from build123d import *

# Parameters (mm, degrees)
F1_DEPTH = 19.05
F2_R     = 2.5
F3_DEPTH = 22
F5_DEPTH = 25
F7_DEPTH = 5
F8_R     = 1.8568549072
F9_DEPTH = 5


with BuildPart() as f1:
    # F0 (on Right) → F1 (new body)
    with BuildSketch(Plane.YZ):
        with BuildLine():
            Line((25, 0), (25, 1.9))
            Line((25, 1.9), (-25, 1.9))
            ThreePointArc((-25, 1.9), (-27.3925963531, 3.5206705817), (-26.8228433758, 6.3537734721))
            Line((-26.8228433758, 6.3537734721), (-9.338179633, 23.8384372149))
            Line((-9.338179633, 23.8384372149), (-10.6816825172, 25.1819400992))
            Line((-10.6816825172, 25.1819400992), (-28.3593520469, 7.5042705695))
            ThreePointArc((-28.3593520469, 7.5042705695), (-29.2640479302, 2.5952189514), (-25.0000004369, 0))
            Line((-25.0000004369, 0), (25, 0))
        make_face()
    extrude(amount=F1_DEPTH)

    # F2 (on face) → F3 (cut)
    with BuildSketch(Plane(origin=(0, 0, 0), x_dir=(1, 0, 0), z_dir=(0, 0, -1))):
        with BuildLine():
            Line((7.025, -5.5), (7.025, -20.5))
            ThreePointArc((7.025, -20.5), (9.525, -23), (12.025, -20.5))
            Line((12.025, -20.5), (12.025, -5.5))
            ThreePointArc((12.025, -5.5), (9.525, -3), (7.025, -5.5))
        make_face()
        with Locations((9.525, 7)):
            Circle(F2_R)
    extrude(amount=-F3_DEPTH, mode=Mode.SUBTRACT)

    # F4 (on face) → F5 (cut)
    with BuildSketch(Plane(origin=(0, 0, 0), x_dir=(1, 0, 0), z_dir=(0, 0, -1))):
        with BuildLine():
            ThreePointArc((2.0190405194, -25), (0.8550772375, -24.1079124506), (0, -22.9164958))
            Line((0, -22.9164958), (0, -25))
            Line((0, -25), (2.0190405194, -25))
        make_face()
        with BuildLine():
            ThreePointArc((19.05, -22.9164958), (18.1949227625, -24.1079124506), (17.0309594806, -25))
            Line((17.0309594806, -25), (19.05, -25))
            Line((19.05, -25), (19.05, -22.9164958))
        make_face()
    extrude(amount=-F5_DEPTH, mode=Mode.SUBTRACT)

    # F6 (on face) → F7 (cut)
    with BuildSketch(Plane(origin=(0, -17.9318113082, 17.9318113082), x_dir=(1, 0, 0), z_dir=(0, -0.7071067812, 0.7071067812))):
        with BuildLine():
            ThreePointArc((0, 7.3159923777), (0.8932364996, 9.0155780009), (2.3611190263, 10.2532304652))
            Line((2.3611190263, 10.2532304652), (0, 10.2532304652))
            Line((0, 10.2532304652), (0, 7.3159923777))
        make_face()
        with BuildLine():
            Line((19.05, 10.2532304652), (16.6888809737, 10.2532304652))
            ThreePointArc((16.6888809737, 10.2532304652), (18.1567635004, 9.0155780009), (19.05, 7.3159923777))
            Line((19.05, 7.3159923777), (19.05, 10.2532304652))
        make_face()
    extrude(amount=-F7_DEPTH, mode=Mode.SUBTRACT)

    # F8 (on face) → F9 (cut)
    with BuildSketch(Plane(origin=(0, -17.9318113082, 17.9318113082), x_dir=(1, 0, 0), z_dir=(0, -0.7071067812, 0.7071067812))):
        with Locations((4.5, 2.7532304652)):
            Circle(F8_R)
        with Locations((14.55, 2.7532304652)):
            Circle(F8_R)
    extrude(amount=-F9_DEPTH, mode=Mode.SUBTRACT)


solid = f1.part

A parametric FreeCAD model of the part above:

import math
import FreeCAD as App
import Part
import Sketcher

V = App.Vector
Q = App.Units.Quantity

doc = App.newDocument("Part")
body = doc.addObject("PartDesign::Body", "Body")

# Sketch on YZ plane
sketch1 = body.newObject("Sketcher::SketchObject", "Sketch")
sketch1.AttachmentSupport = (doc.getObject("YZ_Plane"), [""])
sketch1.MapMode = "FlatFace"
sketch1.addGeometry(Part.LineSegment(V(25, 0, 0), V(25, 1.9, 0)), False)
sketch1.addGeometry(Part.LineSegment(V(25, 1.9, 0), V(-25, 1.9, 0)), False)
sketch1.addGeometry(Part.ArcOfCircle(Part.Circle(V(-24.977992, 4.508922, 0), V(0, 0, 1), 2.609014), math.radians(135), math.radians(269.516673)), False)
sketch1.addGeometry(Part.LineSegment(V(-26.822843, 6.353773, 0), V(-9.33818, 23.838437, 0)), False)
sketch1.addGeometry(Part.LineSegment(V(-9.33818, 23.838437, 0), V(-10.681683, 25.18194, 0)), False)
sketch1.addGeometry(Part.LineSegment(V(-10.681683, 25.18194, 0), V(-28.359352, 7.504271, 0)), False)
sketch1.addGeometry(Part.ArcOfCircle(Part.Circle(V(-25.248082, 4.393001, 0), V(0, 0, 1), 4.4), math.radians(135), math.radians(273.232177)), False)
sketch1.addGeometry(Part.LineSegment(V(-25, 0, 0), V(25, 0, 0)), False)
sketch1.addConstraint(Sketcher.Constraint("Coincident", 0, 2, 1, 1))
sketch1.addConstraint(Sketcher.Constraint("Coincident", 1, 2, 2, 2))
sketch1.addConstraint(Sketcher.Constraint("Tangent", 2, 1, 3, 1))
sketch1.addConstraint(Sketcher.Constraint("Coincident", 3, 2, 4, 1))
sketch1.addConstraint(Sketcher.Constraint("Coincident", 4, 2, 5, 1))
sketch1.addConstraint(Sketcher.Constraint("Tangent", 5, 2, 6, 1))
sketch1.addConstraint(Sketcher.Constraint("Coincident", 6, 2, 7, 1))
sketch1.addConstraint(Sketcher.Constraint("Coincident", 7, 2, 0, 1))
sketch1.addConstraint(Sketcher.Constraint("Vertical", 0))
sketch1.addConstraint(Sketcher.Constraint("Horizontal", 1))
sketch1.addConstraint(Sketcher.Constraint("Horizontal", 7))
sketch1.addConstraint(Sketcher.Constraint("Symmetric", 6, 2, 7, 2, -1, 1))
sketch1.addConstraint(Sketcher.Constraint("Perpendicular", 3, 4))
sketch1.addConstraint(Sketcher.Constraint("Perpendicular", 4, 5))
sketch1.addConstraint(Sketcher.Constraint("Vertical", 1, 2, 6, 2))
sketch1.addConstraint(Sketcher.Constraint("Radius", 6, 4.4))
sketch1.addConstraint(Sketcher.Constraint("DistanceX", 1, 2, 1, 1, 50.0))
sketch1.addConstraint(Sketcher.Constraint("Angle", 3, Q("45 deg")))
sketch1.addConstraint(Sketcher.Constraint("Distance", 5, 25.0))
sketch1.addConstraint(Sketcher.Constraint("DistanceY", 0, 1, 0, 2, 1.9))
sketch1.addConstraint(Sketcher.Constraint("Distance", 4, 1.9))
sketch1.addConstraint(Sketcher.Constraint("DistanceY", -1, 1, 6, 3, 4.393001))
sketch1.addConstraint(Sketcher.Constraint("Radius", 2, 2.609014))
pad1 = body.newObject("PartDesign::Pad", "Pad")
pad1.Profile = sketch1
pad1.Length = 19.05

# Sketch on XY plane
sketch2 = body.newObject("Sketcher::SketchObject", "Sketch001")
sketch2.AttachmentSupport = (doc.getObject("XY_Plane"), [""])
sketch2.MapMode = "FlatFace"
sketch2.addGeometry(Part.LineSegment(V(7.025, 5.5, 0), V(7.025, 20.5, 0)), False)
sketch2.addGeometry(Part.ArcOfCircle(Part.Circle(V(9.525, 20.5, 0), V(0, 0, 1), 2.5), math.radians(0), math.radians(180)), False)
sketch2.addGeometry(Part.LineSegment(V(12.025, 20.5, 0), V(12.025, 5.5, 0)), False)
sketch2.addGeometry(Part.ArcOfCircle(Part.Circle(V(9.525, 5.5, 0), V(0, 0, 1), 2.5), math.radians(180), math.radians(360)), False)
sketch2.addGeometry(Part.Circle(V(9.525, -7, 0), V(0, 0, 1), 2.5), False)
sketch2.addConstraint(Sketcher.Constraint("Tangent", 0, 2, 1, 2))
sketch2.addConstraint(Sketcher.Constraint("Tangent", 1, 1, 2, 1))
sketch2.addConstraint(Sketcher.Constraint("Tangent", 2, 2, 3, 2))
sketch2.addConstraint(Sketcher.Constraint("Tangent", 3, 1, 0, 1))
sketch2.addConstraint(Sketcher.Constraint("Vertical", 0))
sketch2.addConstraint(Sketcher.Constraint("Vertical", 2))
sketch2.addConstraint(Sketcher.Constraint("Equal", 3, 4))
sketch2.addConstraint(Sketcher.Constraint("Vertical", 3, 3, 4, 3))
sketch2.addConstraint(Sketcher.Constraint("Diameter", 4, 5.0))
sketch2.addConstraint(Sketcher.Constraint("DistanceY", 0, 1, 0, 2, 15.0))
sketch2.addConstraint(Sketcher.Constraint("DistanceY", 4, 3, -1, 1, 7.0))
sketch2.addConstraint(Sketcher.Constraint("DistanceY", -1, 1, 1, 3, 20.5))
sketch2.addConstraint(Sketcher.Constraint("DistanceX", -1, 1, 1, 3, 9.525))
pocket1 = body.newObject("PartDesign::Pocket", "Pocket")
pocket1.Profile = sketch2
pocket1.Length = 22
pocket1.Reversed = True

# Sketch on XY plane
sketch3 = body.newObject("Sketcher::SketchObject", "Sketch002")
sketch3.AttachmentSupport = (doc.getObject("XY_Plane"), [""])
sketch3.MapMode = "FlatFace"
sketch3.addGeometry(Part.ArcOfCircle(Part.Circle(V(4.445722, 20.628362, 0), V(0, 0, 1), 5), math.radians(119.034509), math.radians(152.765931)), False)
sketch3.addGeometry(Part.LineSegment(V(0, 22.916496, 0), V(0, 25, 0)), False)
sketch3.addGeometry(Part.LineSegment(V(0, 25, 0), V(2.019041, 25, 0)), False)
sketch3.addGeometry(Part.ArcOfCircle(Part.Circle(V(14.604278, 20.628362, 0), V(0, 0, 1), 5), math.radians(27.234069), math.radians(60.965491)), False)
sketch3.addGeometry(Part.LineSegment(V(17.030959, 25, 0), V(19.05, 25, 0)), False)
sketch3.addGeometry(Part.LineSegment(V(19.05, 25, 0), V(19.05, 22.916496, 0)), False)
sketch3.addConstraint(Sketcher.Constraint("Coincident", 0, 2, 1, 1))
sketch3.addConstraint(Sketcher.Constraint("Coincident", 1, 2, 2, 1))
sketch3.addConstraint(Sketcher.Constraint("Coincident", 2, 2, 0, 1))
sketch3.addConstraint(Sketcher.Constraint("Coincident", 3, 2, 4, 1))
sketch3.addConstraint(Sketcher.Constraint("Coincident", 4, 2, 5, 1))
sketch3.addConstraint(Sketcher.Constraint("Coincident", 5, 2, 3, 1))
sketch3.addConstraint(Sketcher.Constraint("Vertical", 1))
sketch3.addConstraint(Sketcher.Constraint("Horizontal", 2))
sketch3.addConstraint(Sketcher.Constraint("Horizontal", 4))
sketch3.addConstraint(Sketcher.Constraint("Vertical", 5))
sketch3.addConstraint(Sketcher.Constraint("Equal", 0, 3))
sketch3.addConstraint(Sketcher.Constraint("PointOnObject", 0, 2, -2))
sketch3.addConstraint(Sketcher.Constraint("Horizontal", 0, 3, 3, 3))
sketch3.addConstraint(Sketcher.Constraint("Horizontal", 2, 2, 3, 2))
sketch3.addConstraint(Sketcher.Constraint("Horizontal", 0, 2, 5, 2))
sketch3.addConstraint(Sketcher.Constraint("Radius", 0, 5.0))
sketch3.addConstraint(Sketcher.Constraint("DistanceY", -1, 1, 1, 2, 25.0))
sketch3.addConstraint(Sketcher.Constraint("DistanceX", -1, 1, 4, 2, 19.05))
sketch3.addConstraint(Sketcher.Constraint("DistanceX", 2, 1, 2, 2, 2.019041))
sketch3.addConstraint(Sketcher.Constraint("DistanceY", 1, 1, 1, 2, 2.083504))
pocket2 = body.newObject("PartDesign::Pocket", "Pocket001")
pocket2.Profile = sketch3
pocket2.Length = 25
pocket2.Reversed = True

# Sketch on an angled plane
sketch4 = body.newObject("Sketcher::SketchObject", "Sketch003")
sketch4.Placement = App.Placement(V(0, -17.931811, 17.931811), App.Rotation(V(1, 0, 0), V(0, 0.707106781, 0.707106781), V(0, -0.707106781, 0.707106781), "ZXY"))
sketch4.addGeometry(Part.ArcOfCircle(Part.Circle(V(4.790238, 5.882947, 0), V(0, 0, 1), 5), math.radians(119.066459), math.radians(163.34494)), False)
sketch4.addGeometry(Part.LineSegment(V(2.361119, 10.25323, 0), V(0, 10.25323, 0)), False)
sketch4.addGeometry(Part.LineSegment(V(0, 10.25323, 0), V(0, 7.315992, 0)), False)
sketch4.addGeometry(Part.LineSegment(V(19.05, 10.25323, 0), V(16.688881, 10.25323, 0)), False)
sketch4.addGeometry(Part.ArcOfCircle(Part.Circle(V(14.259762, 5.882947, 0), V(0, 0, 1), 5), math.radians(16.65506), math.radians(60.933541)), False)
sketch4.addGeometry(Part.LineSegment(V(19.05, 7.315992, 0), V(19.05, 10.25323, 0)), False)
sketch4.addConstraint(Sketcher.Constraint("Coincident", 0, 1, 1, 1))
sketch4.addConstraint(Sketcher.Constraint("Coincident", 1, 2, 2, 1))
sketch4.addConstraint(Sketcher.Constraint("Coincident", 2, 2, 0, 2))
sketch4.addConstraint(Sketcher.Constraint("Coincident", 3, 2, 4, 2))
sketch4.addConstraint(Sketcher.Constraint("Coincident", 4, 1, 5, 1))
sketch4.addConstraint(Sketcher.Constraint("Coincident", 5, 2, 3, 1))
sketch4.addConstraint(Sketcher.Constraint("Horizontal", 1))
sketch4.addConstraint(Sketcher.Constraint("Vertical", 2))
sketch4.addConstraint(Sketcher.Constraint("Horizontal", 3))
sketch4.addConstraint(Sketcher.Constraint("Vertical", 5))
sketch4.addConstraint(Sketcher.Constraint("Equal", 0, 4))
sketch4.addConstraint(Sketcher.Constraint("PointOnObject", 1, 2, -2))
sketch4.addConstraint(Sketcher.Constraint("Horizontal", 0, 3, 4, 3))
sketch4.addConstraint(Sketcher.Constraint("Horizontal", 1, 2, 3, 2))
sketch4.addConstraint(Sketcher.Constraint("Horizontal", 2, 2, 4, 1))
sketch4.addConstraint(Sketcher.Constraint("Radius", 0, 5.0))
sketch4.addConstraint(Sketcher.Constraint("DistanceX", -1, 1, 4, 1, 19.05))
sketch4.addConstraint(Sketcher.Constraint("DistanceX", 1, 2, 1, 1, 2.361119))
sketch4.addConstraint(Sketcher.Constraint("DistanceY", 2, 2, 2, 1, 2.937238))
sketch4.addConstraint(Sketcher.Constraint("DistanceY", -1, 1, 0, 1, 10.25323))
pocket3 = body.newObject("PartDesign::Pocket", "Pocket002")
pocket3.Profile = sketch4
pocket3.Length = 5

# Sketch on an angled plane
sketch5 = body.newObject("Sketcher::SketchObject", "Sketch004")
sketch5.Placement = App.Placement(V(0, -17.931811, 17.931811), App.Rotation(V(1, 0, 0), V(0, 0.707106781, 0.707106781), V(0, -0.707106781, 0.707106781), "ZXY"))
sketch5.addGeometry(Part.Circle(V(4.5, 2.75323, 0), V(0, 0, 1), 1.856855), False)
sketch5.addGeometry(Part.Circle(V(14.55, 2.75323, 0), V(0, 0, 1), 1.856855), False)
sketch5.addConstraint(Sketcher.Constraint("Equal", 0, 1))
sketch5.addConstraint(Sketcher.Constraint("Horizontal", 0, 3, 1, 3))
sketch5.addConstraint(Sketcher.Constraint("DistanceX", -1, 1, 0, 3, 4.5))
sketch5.addConstraint(Sketcher.Constraint("Diameter", 0, 3.71371))
sketch5.addConstraint(Sketcher.Constraint("DistanceX", -1, 1, 1, 3, 14.55))
sketch5.addConstraint(Sketcher.Constraint("DistanceY", -1, 1, 0, 3, 2.75323))
pocket4 = body.newObject("PartDesign::Pocket", "Pocket003")
pocket4.Profile = sketch5
pocket4.Length = 5

doc.recompute()
